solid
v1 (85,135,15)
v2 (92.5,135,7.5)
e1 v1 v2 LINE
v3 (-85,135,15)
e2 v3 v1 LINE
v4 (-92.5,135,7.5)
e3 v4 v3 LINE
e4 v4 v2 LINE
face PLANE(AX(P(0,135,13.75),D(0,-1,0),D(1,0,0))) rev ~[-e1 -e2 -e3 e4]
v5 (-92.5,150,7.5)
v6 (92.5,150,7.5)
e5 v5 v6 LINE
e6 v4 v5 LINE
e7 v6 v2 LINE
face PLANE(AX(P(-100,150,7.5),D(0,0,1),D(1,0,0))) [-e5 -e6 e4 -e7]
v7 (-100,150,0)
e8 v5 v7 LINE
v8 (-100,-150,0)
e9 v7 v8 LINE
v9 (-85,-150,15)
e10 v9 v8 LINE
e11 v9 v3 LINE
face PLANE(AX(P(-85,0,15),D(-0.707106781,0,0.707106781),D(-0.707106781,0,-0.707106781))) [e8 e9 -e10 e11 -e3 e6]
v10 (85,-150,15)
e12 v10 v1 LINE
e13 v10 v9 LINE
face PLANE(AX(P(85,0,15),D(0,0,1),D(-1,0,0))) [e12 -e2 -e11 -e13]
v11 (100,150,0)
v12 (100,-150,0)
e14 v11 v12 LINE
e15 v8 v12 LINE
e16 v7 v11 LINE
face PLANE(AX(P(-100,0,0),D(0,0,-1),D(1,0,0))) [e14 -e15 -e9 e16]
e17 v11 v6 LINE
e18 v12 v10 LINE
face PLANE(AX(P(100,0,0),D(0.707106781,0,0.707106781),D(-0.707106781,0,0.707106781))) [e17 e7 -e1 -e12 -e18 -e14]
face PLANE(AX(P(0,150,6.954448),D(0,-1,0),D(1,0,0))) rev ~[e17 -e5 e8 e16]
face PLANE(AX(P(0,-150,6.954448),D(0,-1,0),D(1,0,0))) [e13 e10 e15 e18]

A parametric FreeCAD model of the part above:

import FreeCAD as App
import Part
import Sketcher

V = App.Vector

doc = App.newDocument("Part")
body = doc.addObject("PartDesign::Body", "Body")

# Sketch on XZ plane
sketch1 = body.newObject("Sketcher::SketchObject", "Sketch")
sketch1.AttachmentSupport = (doc.getObject("XZ_Plane"), [""])
sketch1.MapMode = "FlatFace"
sketch1.addGeometry([
    Part.LineSegment(V(-85, 15, 0), V(-100, 0, 0)),
    Part.LineSegment(V(-100, 0, 0), V(100, 0, 0)),
    Part.LineSegment(V(100, 0, 0), V(85, 15, 0)),
    Part.LineSegment(V(85, 15, 0), V(-85, 15, 0)),
], False)
sketch1.addConstraint([
    Sketcher.Constraint("Coincident", 0, 2, 1, 1),
    Sketcher.Constraint("Coincident", 1, 2, 2, 1),
    Sketcher.Constraint("Coincident", 2, 2, 3, 1),
    Sketcher.Constraint("Coincident", 3, 2, 0, 1),
    Sketcher.Constraint("Horizontal", 1),
    Sketcher.Constraint("Horizontal", 3),
    Sketcher.Constraint("Symmetric", 0, 2, 1, 2, -1, 1),
    Sketcher.Constraint("Perpendicular", 0, 2),
    Sketcher.Constraint("Equal", 0, 2),
    Sketcher.Constraint("DistanceX", 1, 1, 1, 2, 200.0),
    Sketcher.Constraint("DistanceX", 3, 2, 3, 1, 170.0),
])
pad1 = body.newObject("PartDesign::Pad", "Pad")
pad1.Profile = sketch1
pad1.Type = "TwoLengths"
pad1.Length = 150
pad1.Length2 = 150

# Sketch on XZ plane
sketch2 = body.newObject("Sketcher::SketchObject", "Sketch001")
sketch2.AttachmentSupport = (doc.getObject("XZ_Plane"), [""])
sketch2.MapMode = "FlatFace"
sketch2.AttachmentOffset = App.Placement(V(0, 0, -150), App.Rotation())
sketch2.addGeometry([
    Part.LineSegment(V(-100, 20, 0), V(-100, 7.5, 0)),
    Part.LineSegment(V(-100, 7.5, 0), V(100, 7.5, 0)),
    Part.LineSegment(V(100, 7.5, 0), V(100, 20, 0)),
    Part.LineSegment(V(100, 20, 0), V(-100, 20, 0)),
], False)
sketch2.addConstraint([
    Sketcher.Constraint("Coincident", 0, 2, 1, 1),
    Sketcher.Constraint("Coincident", 1, 2, 2, 1),
    Sketcher.Constraint("Coincident", 2, 2, 3, 1),
    Sketcher.Constraint("Coincident", 3, 2, 0, 1),
    Sketcher.Constraint("Vertical", 0),
    Sketcher.Constraint("Horizontal", 1),
    Sketcher.Constraint("Vertical", 2),
    Sketcher.Constraint("Horizontal", 3),
    Sketcher.Constraint("DistanceX", 1, 1, 1, 2, 200.0),
    Sketcher.Constraint("DistanceY", 0, 2, 0, 1, 12.5),
    Sketcher.Constraint("DistanceX", 0, 2, -1, 1, 100.0),
    Sketcher.Constraint("DistanceY", -1, 1, 2, 2, 20.0),
])
pocket1 = body.newObject("PartDesign::Pocket", "Pocket")
pocket1.Profile = sketch2
pocket1.Length = 15
pocket1.Reversed = True

doc.recompute()
